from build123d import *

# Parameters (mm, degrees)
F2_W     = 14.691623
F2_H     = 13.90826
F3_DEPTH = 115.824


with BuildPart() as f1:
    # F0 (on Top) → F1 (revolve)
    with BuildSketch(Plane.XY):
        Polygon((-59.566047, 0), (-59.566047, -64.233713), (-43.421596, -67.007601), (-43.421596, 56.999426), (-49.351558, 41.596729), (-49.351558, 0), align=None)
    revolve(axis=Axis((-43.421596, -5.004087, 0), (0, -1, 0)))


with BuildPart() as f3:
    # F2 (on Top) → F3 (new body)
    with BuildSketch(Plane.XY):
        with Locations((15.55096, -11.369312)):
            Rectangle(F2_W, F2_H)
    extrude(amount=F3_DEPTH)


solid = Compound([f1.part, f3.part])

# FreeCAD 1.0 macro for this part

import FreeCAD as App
import Part
import Sketcher
Q = App.Units.Quantity

doc = App.newDocument("Part")
body = doc.addObject("PartDesign::Body", "Body")

# Sketch on XY plane
sketch1 = doc.addObject("Sketcher::SketchObject", "Sketch")
body.addObject(sketch1)
sketch1.AttachmentSupport = (doc.XY_Plane, [""])
sketch1.MapMode = "FlatFace"
sketch1.addGeometry([
    Part.LineSegment(App.Vector(-60, 0, 0), App.Vector(-60, -64, 0)),  # 0
    Part.LineSegment(App.Vector(-60, -64, 0), App.Vector(-43, -67, 0)),  # 1
    Part.LineSegment(App.Vector(-43, -67, 0), App.Vector(-43, 57, 0)),  # 2
    Part.LineSegment(App.Vector(-43, 57, 0), App.Vector(-49, 42, 0)),  # 3
    Part.LineSegment(App.Vector(-49, 42, 0), App.Vector(-49, 0, 0)),  # 4
    Part.LineSegment(App.Vector(-49, 0, 0), App.Vector(-60, 0, 0)),  # 5
], False)
sketch1.addGeometry(Part.LineSegment(App.Vector(-43, 57, 0), App.Vector(-43, -67, 0)), True)  # axis
sketch1.addConstraint([
    Sketcher.Constraint("Coincident", 0, 2, 1, 1),
    Sketcher.Constraint("Coincident", 1, 2, 2, 1),
    Sketcher.Constraint("Coincident", 2, 2, 3, 1),
    Sketcher.Constraint("Coincident", 3, 2, 4, 1),
    Sketcher.Constraint("Coincident", 4, 2, 5, 1),
    Sketcher.Constraint("Coincident", 5, 2, 0, 1),
    Sketcher.Constraint("Vertical", 0),
    Sketcher.Constraint("Vertical", 2),
    Sketcher.Constraint("Vertical", 4),
    Sketcher.Constraint("Horizontal", 5),
    Sketcher.Constraint("Vertical", 6),
    Sketcher.Constraint("Coincident", 6, 1, 2, 2),
    Sketcher.Constraint("PointOnObject", 4, 2, -1),
    Sketcher.Constraint("Equal", 2, 6),
    Sketcher.Constraint("DistanceX", 5, 2, 5, 1, 10.214489),
    Sketcher.Constraint("DistanceY", 4, 2, 4, 1, 41.596729),
    Sketcher.Constraint("DistanceY", 1, 2, -1, 1, 67.007601),
    Sketcher.Constraint("Distance", 1, 16.381018),
    Sketcher.Constraint("DistanceY", 0, 2, 0, 1, 64.233713),
    Sketcher.Constraint("DistanceY", 2, 1, 2, 2, 124.007027),
    Sketcher.Constraint("DistanceX", 0, 2, -1, 1, 59.566047),
])
revolution = doc.addObject("PartDesign::Revolution", "Revolution")
body.addObject(revolution)
revolution.Profile = sketch1
revolution.ReferenceAxis = (sketch1, ["Axis0"])
revolution.Angle = 360
body2 = doc.addObject("PartDesign::Body", "Body001")

# Sketch on XY plane
sketch2 = doc.addObject("Sketcher::SketchObject", "Sketch001")
body2.addObject(sketch2)
sketch2.AttachmentSupport = (doc.getObject("XY_Plane001"), [""])
sketch2.MapMode = "FlatFace"
sketch2.addGeometry([
    Part.LineSegment(App.Vector(8, -4, 0), App.Vector(8, -18, 0)),
    Part.LineSegment(App.Vector(8, -18, 0), App.Vector(23, -18, 0)),
    Part.LineSegment(App.Vector(23, -18, 0), App.Vector(23, -4, 0)),
    Part.LineSegment(App.Vector(23, -4, 0), App.Vector(8, -4, 0)),
], False)
sketch2.addConstraint([
    Sketcher.Constraint("Coincident", 0, 2, 1, 1),
    Sketcher.Constraint("Coincident", 1, 2, 2, 1),
    Sketcher.Constraint("Coincident", 2, 2, 3, 1),
    Sketcher.Constraint("Coincident", 3, 2, 0, 1),
    Sketcher.Constraint("Vertical", 0),
    Sketcher.Constraint("Horizontal", 1),
    Sketcher.Constraint("Vertical", 2),
    Sketcher.Constraint("Horizontal", 3),
    Sketcher.Constraint("DistanceY", 0, 2, 0, 1, 13.90826),
    Sketcher.Constraint("DistanceX", 1, 1, 1, 2, 14.691623),
    Sketcher.Constraint("DistanceX", -1, 1, 0, 2, 8.205148),
    Sketcher.Constraint("DistanceY", 0, 2, -1, 1, 18.323442),
])
pad1 = doc.addObject("PartDesign::Pad", "Pad")
body2.addObject(pad1)
pad1.Profile = sketch2
pad1.Length = Q("4.56 in")

doc.recompute()
